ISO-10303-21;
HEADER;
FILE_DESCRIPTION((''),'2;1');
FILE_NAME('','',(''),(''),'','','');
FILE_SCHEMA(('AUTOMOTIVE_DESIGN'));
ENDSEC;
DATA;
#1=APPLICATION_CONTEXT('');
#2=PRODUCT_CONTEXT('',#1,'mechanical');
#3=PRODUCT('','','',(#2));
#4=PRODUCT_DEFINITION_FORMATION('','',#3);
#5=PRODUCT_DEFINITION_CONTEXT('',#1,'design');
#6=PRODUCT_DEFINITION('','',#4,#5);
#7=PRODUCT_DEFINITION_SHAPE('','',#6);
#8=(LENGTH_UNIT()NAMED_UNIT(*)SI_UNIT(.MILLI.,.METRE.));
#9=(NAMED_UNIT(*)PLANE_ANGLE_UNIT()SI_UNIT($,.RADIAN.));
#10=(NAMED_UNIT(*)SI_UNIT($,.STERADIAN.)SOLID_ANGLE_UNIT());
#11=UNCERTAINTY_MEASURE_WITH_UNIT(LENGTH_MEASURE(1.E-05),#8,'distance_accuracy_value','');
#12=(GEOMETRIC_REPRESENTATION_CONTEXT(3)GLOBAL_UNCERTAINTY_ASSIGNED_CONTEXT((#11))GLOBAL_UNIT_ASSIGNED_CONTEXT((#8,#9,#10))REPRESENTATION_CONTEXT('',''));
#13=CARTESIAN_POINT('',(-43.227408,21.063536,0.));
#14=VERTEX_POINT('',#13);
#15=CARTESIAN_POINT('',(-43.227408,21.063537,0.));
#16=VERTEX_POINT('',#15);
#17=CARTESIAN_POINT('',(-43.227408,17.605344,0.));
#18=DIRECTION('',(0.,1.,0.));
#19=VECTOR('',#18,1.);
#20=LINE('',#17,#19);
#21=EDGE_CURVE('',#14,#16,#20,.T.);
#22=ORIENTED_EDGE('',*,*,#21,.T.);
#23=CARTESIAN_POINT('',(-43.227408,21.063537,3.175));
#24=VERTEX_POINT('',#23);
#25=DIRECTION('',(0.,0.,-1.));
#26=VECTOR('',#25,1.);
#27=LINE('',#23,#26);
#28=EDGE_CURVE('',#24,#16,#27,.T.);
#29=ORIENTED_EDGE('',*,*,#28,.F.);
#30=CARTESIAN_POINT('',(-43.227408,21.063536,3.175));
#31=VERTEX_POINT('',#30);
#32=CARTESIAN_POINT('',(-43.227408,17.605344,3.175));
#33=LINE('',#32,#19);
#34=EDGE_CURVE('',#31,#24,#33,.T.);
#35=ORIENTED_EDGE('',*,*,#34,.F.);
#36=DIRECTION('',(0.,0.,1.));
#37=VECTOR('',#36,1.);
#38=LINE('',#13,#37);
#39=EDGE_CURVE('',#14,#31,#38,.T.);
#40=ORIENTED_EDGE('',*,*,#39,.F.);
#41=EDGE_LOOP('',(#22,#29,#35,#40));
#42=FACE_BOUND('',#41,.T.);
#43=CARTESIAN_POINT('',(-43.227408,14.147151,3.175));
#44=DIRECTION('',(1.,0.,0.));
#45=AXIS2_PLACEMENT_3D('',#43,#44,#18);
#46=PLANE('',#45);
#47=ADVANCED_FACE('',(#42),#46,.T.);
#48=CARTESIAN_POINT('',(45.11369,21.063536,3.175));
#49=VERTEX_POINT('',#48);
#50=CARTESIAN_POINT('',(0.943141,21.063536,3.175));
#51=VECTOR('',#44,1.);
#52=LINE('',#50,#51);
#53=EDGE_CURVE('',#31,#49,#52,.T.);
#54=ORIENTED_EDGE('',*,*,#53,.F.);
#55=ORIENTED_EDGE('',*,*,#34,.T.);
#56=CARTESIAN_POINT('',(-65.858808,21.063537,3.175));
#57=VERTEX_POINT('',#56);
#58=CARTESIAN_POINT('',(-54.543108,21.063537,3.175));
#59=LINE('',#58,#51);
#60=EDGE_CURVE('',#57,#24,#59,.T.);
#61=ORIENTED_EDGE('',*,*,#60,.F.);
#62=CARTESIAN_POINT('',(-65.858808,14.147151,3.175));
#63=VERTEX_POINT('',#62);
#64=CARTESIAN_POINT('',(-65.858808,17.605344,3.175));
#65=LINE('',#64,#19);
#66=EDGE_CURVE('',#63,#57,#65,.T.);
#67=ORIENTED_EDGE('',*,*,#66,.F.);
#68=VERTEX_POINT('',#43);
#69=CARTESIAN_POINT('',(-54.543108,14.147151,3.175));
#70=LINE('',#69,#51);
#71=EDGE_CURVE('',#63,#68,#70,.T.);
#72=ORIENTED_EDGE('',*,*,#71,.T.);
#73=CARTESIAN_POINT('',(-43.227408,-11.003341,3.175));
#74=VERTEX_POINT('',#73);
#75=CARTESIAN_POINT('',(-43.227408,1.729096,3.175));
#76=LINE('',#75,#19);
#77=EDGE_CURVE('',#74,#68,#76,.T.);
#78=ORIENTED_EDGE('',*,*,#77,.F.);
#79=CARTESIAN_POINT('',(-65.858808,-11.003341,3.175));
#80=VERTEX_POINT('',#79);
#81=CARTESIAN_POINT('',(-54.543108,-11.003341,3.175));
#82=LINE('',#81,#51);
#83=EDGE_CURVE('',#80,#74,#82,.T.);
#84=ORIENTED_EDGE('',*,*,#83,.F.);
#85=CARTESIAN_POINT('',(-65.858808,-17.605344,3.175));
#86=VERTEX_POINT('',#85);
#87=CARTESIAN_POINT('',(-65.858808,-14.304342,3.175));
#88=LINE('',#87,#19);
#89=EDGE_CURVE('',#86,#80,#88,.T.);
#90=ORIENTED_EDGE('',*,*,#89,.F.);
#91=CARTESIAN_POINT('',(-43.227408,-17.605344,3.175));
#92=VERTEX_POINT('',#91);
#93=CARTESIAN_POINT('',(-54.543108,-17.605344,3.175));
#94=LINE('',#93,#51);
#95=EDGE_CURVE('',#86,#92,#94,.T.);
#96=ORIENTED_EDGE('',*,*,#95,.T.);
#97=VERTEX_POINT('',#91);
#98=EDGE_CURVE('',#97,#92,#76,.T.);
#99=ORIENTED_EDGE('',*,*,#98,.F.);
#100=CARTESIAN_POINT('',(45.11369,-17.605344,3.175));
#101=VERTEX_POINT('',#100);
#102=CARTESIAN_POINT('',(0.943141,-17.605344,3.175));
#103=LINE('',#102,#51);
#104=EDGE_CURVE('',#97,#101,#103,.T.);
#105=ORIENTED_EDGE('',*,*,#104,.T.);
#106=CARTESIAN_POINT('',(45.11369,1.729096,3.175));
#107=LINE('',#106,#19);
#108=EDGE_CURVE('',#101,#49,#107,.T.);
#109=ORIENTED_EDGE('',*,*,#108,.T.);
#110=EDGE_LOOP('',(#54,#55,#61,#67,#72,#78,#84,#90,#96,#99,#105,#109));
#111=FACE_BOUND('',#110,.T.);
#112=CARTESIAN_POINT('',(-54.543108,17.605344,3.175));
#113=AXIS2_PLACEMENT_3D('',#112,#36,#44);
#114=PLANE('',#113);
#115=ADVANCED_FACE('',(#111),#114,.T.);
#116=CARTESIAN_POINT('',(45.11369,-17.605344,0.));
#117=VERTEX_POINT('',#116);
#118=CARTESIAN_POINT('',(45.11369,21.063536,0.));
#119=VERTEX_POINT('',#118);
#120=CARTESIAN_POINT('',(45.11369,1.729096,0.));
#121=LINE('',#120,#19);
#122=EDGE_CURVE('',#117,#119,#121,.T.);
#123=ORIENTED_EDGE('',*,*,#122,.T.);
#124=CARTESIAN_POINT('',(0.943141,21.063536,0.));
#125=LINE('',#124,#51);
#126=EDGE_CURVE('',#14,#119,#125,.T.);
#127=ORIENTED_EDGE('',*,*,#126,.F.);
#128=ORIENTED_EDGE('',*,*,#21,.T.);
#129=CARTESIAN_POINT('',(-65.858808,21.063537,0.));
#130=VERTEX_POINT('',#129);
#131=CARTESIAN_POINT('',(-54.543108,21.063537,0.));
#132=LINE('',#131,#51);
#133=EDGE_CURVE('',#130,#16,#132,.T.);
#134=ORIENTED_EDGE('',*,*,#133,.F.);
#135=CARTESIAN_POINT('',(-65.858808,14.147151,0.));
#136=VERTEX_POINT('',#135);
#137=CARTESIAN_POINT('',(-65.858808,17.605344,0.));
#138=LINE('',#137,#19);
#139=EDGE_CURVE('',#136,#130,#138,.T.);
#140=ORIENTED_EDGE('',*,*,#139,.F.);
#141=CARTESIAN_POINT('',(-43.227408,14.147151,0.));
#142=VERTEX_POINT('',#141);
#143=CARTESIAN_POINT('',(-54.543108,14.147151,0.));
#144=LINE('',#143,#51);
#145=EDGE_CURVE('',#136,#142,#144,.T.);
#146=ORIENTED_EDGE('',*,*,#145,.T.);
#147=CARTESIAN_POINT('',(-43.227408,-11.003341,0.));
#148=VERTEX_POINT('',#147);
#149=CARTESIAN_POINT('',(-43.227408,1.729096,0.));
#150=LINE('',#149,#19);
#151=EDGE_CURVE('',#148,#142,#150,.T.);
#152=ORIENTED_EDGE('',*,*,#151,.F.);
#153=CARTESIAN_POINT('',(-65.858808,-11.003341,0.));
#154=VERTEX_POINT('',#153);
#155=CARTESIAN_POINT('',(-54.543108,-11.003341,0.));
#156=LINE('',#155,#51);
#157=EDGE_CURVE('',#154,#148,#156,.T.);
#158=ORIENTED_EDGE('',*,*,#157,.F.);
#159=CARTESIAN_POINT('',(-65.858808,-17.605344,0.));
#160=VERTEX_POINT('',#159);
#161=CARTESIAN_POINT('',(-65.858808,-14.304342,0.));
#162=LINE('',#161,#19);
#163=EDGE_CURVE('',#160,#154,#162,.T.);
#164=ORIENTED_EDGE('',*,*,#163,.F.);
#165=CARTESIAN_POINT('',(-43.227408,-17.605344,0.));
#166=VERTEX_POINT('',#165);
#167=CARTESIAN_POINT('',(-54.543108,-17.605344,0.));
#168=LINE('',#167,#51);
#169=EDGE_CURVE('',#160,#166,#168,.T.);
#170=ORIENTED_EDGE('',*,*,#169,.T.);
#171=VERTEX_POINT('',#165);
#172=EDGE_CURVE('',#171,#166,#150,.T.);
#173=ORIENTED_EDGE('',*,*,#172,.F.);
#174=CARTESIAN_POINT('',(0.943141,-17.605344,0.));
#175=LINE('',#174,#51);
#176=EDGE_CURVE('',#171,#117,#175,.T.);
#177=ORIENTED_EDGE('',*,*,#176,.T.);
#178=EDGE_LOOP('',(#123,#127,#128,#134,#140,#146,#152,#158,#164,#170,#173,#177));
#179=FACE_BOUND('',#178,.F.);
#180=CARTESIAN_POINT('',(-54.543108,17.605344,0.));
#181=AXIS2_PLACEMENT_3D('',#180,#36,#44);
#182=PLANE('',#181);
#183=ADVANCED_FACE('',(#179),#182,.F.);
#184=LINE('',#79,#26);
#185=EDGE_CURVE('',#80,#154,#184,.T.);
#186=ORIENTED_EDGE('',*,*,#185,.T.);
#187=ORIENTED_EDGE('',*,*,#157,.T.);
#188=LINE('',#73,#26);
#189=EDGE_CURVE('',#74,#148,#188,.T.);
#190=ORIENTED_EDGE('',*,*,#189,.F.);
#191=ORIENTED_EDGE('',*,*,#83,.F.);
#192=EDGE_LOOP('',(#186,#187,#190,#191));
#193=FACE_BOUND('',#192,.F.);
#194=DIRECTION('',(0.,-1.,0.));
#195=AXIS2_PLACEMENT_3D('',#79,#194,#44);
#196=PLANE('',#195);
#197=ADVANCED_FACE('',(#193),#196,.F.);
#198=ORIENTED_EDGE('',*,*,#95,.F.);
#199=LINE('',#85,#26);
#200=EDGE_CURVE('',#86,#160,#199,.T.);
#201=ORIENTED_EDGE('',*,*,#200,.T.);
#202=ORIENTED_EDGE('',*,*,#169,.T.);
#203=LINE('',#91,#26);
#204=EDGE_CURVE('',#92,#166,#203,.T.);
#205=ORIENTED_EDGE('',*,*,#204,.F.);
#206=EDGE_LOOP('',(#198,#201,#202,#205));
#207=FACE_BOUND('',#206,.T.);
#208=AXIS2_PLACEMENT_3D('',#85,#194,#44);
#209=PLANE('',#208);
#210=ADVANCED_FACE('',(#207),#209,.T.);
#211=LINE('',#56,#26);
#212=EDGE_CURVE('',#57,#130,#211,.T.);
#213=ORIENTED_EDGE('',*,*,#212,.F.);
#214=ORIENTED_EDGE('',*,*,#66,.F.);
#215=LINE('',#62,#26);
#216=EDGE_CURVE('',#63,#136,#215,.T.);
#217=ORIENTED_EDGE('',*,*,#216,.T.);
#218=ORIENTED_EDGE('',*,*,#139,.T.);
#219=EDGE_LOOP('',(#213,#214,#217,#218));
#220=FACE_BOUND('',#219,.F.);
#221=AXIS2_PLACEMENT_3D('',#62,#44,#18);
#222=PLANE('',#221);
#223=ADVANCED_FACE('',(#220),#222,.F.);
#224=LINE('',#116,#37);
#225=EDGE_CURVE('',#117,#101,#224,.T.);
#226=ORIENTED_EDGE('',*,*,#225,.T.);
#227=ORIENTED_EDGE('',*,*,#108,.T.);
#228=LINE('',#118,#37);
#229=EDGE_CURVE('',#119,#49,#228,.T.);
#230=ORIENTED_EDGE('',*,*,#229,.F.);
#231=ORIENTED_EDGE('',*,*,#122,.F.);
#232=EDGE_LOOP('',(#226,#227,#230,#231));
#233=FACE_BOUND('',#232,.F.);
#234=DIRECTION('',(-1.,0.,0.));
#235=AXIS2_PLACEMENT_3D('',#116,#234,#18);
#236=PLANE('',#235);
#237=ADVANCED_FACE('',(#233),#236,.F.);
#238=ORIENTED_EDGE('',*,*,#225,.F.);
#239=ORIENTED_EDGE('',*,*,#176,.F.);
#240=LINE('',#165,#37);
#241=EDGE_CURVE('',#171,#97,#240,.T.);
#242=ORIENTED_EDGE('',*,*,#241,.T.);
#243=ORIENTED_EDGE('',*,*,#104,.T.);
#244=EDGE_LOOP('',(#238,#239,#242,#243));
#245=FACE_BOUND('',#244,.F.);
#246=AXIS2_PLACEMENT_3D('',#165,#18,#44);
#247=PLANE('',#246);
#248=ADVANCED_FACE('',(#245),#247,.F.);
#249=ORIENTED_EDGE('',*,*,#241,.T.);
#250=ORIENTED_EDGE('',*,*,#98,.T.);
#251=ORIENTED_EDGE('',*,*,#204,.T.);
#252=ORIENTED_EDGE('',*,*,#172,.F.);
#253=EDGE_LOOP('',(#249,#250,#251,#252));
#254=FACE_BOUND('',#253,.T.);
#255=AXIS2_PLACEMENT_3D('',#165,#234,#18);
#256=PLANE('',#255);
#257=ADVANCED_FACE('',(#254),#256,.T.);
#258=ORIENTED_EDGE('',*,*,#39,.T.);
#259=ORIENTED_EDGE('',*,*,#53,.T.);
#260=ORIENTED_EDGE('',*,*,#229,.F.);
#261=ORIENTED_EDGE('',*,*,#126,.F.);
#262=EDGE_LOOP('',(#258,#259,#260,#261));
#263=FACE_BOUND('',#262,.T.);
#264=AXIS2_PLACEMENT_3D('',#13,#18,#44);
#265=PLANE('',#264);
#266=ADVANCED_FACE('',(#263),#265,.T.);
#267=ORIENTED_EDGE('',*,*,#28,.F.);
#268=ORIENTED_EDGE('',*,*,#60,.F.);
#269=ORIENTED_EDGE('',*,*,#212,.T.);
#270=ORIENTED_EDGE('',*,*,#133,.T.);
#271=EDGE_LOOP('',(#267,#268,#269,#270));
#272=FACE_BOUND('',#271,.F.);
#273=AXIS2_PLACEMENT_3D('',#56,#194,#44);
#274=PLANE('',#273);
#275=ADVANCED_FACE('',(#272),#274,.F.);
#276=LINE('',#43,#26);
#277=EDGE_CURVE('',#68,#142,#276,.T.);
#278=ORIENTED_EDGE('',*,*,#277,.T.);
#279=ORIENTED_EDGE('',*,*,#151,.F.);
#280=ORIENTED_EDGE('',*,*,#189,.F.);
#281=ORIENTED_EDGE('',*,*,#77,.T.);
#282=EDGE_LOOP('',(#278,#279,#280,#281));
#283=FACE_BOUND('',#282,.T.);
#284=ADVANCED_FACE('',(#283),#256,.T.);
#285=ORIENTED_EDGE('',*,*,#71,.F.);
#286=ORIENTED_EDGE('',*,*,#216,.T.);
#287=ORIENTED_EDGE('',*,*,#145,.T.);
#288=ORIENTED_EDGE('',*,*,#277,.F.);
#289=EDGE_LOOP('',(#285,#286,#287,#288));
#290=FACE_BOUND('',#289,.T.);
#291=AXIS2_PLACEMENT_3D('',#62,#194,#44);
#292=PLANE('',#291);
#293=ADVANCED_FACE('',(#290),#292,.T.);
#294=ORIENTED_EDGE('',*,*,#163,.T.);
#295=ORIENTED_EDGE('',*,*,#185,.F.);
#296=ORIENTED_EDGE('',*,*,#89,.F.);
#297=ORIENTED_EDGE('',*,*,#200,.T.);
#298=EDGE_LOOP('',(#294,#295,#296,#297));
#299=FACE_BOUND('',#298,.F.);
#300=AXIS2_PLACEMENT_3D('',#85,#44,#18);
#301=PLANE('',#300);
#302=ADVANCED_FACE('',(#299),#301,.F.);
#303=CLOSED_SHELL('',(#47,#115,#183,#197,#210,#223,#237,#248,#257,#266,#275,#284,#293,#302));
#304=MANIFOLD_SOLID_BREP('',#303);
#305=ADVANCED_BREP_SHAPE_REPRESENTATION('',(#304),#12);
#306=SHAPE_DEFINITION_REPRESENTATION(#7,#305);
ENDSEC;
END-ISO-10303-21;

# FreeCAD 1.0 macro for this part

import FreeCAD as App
import Part
import Sketcher
Q = App.Units.Quantity

doc = App.newDocument("Part")
body = doc.addObject("PartDesign::Body", "Body")

# Sketch on XY plane
sketch1 = body.newObject("Sketcher::SketchObject", "Sketch")
sketch1.AttachmentSupport = (doc.getObject("XY_Plane"), [""])
sketch1.MapMode = "FlatFace"
sketch1.addGeometry([
    Part.LineSegment(App.Vector(-43, 21, 0), App.Vector(-43, -18, 0)),
    Part.LineSegment(App.Vector(-43, -18, 0), App.Vector(45, -18, 0)),
    Part.LineSegment(App.Vector(45, -18, 0), App.Vector(45, 21, 0)),
    Part.LineSegment(App.Vector(45, 21, 0), App.Vector(-43, 21, 0)),
], False)
sketch1.addConstraint([
    Sketcher.Constraint("Coincident", 0, 2, 1, 1),
    Sketcher.Constraint("Coincident", 1, 2, 2, 1),
    Sketcher.Constraint("Coincident", 2, 2, 3, 1),
    Sketcher.Constraint("Coincident", 3, 2, 0, 1),
    Sketcher.Constraint("Vertical", 0),
    Sketcher.Constraint("Horizontal", 1),
    Sketcher.Constraint("Vertical", 2),
    Sketcher.Constraint("Horizontal", 3),
    Sketcher.Constraint("DistanceY", 0, 2, 0, 1, 38.66888),
    Sketcher.Constraint("DistanceX", 1, 1, 1, 2, 88.341098),
    Sketcher.Constraint("DistanceX", -1, 1, 1, 2, 45.11369),
    Sketcher.Constraint("DistanceY", 0, 2, -1, 1, 17.605344),
])
pad1 = body.newObject("PartDesign::Pad", "Pad")
pad1.Profile = sketch1
pad1.Length = Q("0.125 in")

# Sketch on XY plane
sketch2 = body.newObject("Sketcher::SketchObject", "Sketch001")
sketch2.AttachmentSupport = (doc.getObject("XY_Plane"), [""])
sketch2.MapMode = "FlatFace"
sketch2.AttachmentOffset = App.Placement(App.Vector(0, 0, 0.125 * 25.4), App.Rotation())
sketch2.addGeometry([
    Part.LineSegment(App.Vector(-66, 21, 0), App.Vector(-66, 14, 0)),
    Part.LineSegment(App.Vector(-66, 14, 0), App.Vector(-43, 14, 0)),
    Part.LineSegment(App.Vector(-43, 14, 0), App.Vector(-43, 21, 0)),
    Part.LineSegment(App.Vector(-43, 21, 0), App.Vector(-66, 21, 0)),
], False)
sketch2.addConstraint([
    Sketcher.Constraint("Coincident", 0, 2, 1, 1),
    Sketcher.Constraint("Coincident", 1, 2, 2, 1),
    Sketcher.Constraint("Coincident", 2, 2, 3, 1),
    Sketcher.Constraint("Coincident", 3, 2, 0, 1),
    Sketcher.Constraint("Vertical", 0),
    Sketcher.Constraint("Horizontal", 1),
    Sketcher.Constraint("Vertical", 2),
    Sketcher.Constraint("Horizontal", 3),
    Sketcher.Constraint("DistanceX", 1, 1, 1, 2, Q("0.891 in")),
    Sketcher.Constraint("DistanceY", 0, 2, 0, 1, 6.916385),
    Sketcher.Constraint("DistanceY", -1, 1, 0, 2, 14.147151),
    Sketcher.Constraint("DistanceX", 0, 2, -1, 1, 65.858808),
])
pad2 = body.newObject("PartDesign::Pad", "Pad001")
pad2.Profile = sketch2
pad2.Length = Q("0.125 in")
pad2.Reversed = True

# Sketch on XY plane
sketch3 = body.newObject("Sketcher::SketchObject", "Sketch002")
sketch3.AttachmentSupport = (doc.getObject("XY_Plane"), [""])
sketch3.MapMode = "FlatFace"
sketch3.AttachmentOffset = App.Placement(App.Vector(0, 0, 0.125 * 25.4), App.Rotation())
sketch3.addGeometry([
    Part.LineSegment(App.Vector(-66, -11, 0), App.Vector(-66, -18, 0)),
    Part.LineSegment(App.Vector(-66, -18, 0), App.Vector(-43, -18, 0)),
    Part.LineSegment(App.Vector(-43, -18, 0), App.Vector(-43, -11, 0)),
    Part.LineSegment(App.Vector(-43, -11, 0), App.Vector(-66, -11, 0)),
], False)
sketch3.addConstraint([
    Sketcher.Constraint("Coincident", 0, 2, 1, 1),
    Sketcher.Constraint("Coincident", 1, 2, 2, 1),
    Sketcher.Constraint("Coincident", 2, 2, 3, 1),
    Sketcher.Constraint("Coincident", 3, 2, 0, 1),
    Sketcher.Constraint("Vertical", 0),
    Sketcher.Constraint("Horizontal", 1),
    Sketcher.Constraint("Vertical", 2),
    Sketcher.Constraint("Horizontal", 3),
    Sketcher.Constraint("DistanceX", 1, 1, 1, 2, Q("0.891 in")),
    Sketcher.Constraint("DistanceY", 0, 2, 0, 1, 6.602003),
    Sketcher.Constraint("DistanceY", 2, 2, -1, 1, 11.003341),
    Sketcher.Constraint("DistanceX", 0, 2, -1, 1, 65.858808),
])
pad3 = body.newObject("PartDesign::Pad", "Pad002")
pad3.Profile = sketch3
pad3.Length = Q("0.125 in")
pad3.Reversed = True

doc.recompute()
